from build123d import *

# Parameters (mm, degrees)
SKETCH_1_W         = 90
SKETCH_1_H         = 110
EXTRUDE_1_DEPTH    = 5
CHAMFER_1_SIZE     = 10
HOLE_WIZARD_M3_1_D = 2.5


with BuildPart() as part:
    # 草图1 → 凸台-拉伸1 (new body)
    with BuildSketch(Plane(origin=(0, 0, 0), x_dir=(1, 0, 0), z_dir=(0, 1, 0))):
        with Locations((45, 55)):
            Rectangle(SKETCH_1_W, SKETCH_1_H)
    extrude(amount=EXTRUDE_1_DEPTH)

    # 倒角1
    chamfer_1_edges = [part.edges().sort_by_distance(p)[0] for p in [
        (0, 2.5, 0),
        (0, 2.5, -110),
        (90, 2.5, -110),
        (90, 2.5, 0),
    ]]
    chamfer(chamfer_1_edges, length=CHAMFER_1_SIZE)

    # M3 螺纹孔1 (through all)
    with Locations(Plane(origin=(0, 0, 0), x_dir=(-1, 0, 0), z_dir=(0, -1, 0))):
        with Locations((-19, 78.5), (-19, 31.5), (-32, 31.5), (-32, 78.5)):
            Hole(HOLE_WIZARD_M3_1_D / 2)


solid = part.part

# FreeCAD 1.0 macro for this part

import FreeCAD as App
import Part
import Sketcher
from FreeCAD import Vector


def edges_at(feature, points):
    """Names of the edges that pass closest to the given points."""
    edges = feature.Shape.Edges
    near = lambda p: min(range(len(edges)), key=lambda i: edges[i].distToShape(Part.Vertex(*p))[0])
    return sorted({f"Edge{near(p) + 1}" for p in points})

doc = App.newDocument("Part")
body = doc.addObject("PartDesign::Body", "Body")

sketch1 = body.newObject("Sketcher::SketchObject", "Sketch")
sketch1.AttachmentSupport = (doc.getObject("XZ_Plane"), [""])
sketch1.MapMode = "FlatFace"
sketch1.addGeometry([
    Part.LineSegment(Vector(0, -110, 0), Vector(0, 0, 0)),
    Part.LineSegment(Vector(0, 0, 0), Vector(90, 0, 0)),
    Part.LineSegment(Vector(90, 0, 0), Vector(90, -110, 0)),
    Part.LineSegment(Vector(90, -110, 0), Vector(0, -110, 0)),
], False)
sketch1.addConstraint([
    Sketcher.Constraint("Coincident", 0, 2, 1, 1),
    Sketcher.Constraint("Coincident", 1, 2, 2, 1),
    Sketcher.Constraint("Coincident", 2, 2, 3, 1),
    Sketcher.Constraint("Coincident", 3, 2, 0, 1),
    Sketcher.Constraint("Vertical", 0),
    Sketcher.Constraint("Horizontal", 1),
    Sketcher.Constraint("Vertical", 2),
    Sketcher.Constraint("Horizontal", 3),
    Sketcher.Constraint("Coincident", 0, 2, -1, 1),
    Sketcher.Constraint("DistanceX", 1, 1, 1, 2, 90.0),
    Sketcher.Constraint("DistanceY", 0, 1, 0, 2, 110.0),
])
pad1 = body.newObject("PartDesign::Pad", "Pad")
pad1.Profile = sketch1
pad1.Length = 5
pad1.Reversed = True
doc.recompute()

chamfer = body.newObject("PartDesign::Chamfer", "Chamfer")
chamfer.Base = (pad1, edges_at(pad1, [
    (0, 2.5, 0),
    (0, 2.5, -110),
    (90, 2.5, -110),
    (90, 2.5, 0),
]))
chamfer.Size = 10

sketch2 = body.newObject("Sketcher::SketchObject", "Sketch001")
sketch2.AttachmentSupport = (doc.getObject("XZ_Plane"), [""])
sketch2.MapMode = "FlatFace"
sketch2.addGeometry([
    Part.Circle(Vector(19, -78.5, 0), Vector(0, 0, 1), 1.2),
    Part.Circle(Vector(19, -31.5, 0), Vector(0, 0, 1), 1.2),
    Part.Circle(Vector(32, -31.5, 0), Vector(0, 0, 1), 1.2),
    Part.Circle(Vector(32, -78.5, 0), Vector(0, 0, 1), 1.2),
], False)
sketch2.addConstraint([
    Sketcher.Constraint("Equal", 0, 1),
    Sketcher.Constraint("Equal", 1, 2),
    Sketcher.Constraint("Equal", 2, 3),
    Sketcher.Constraint("Horizontal", 1, 3, 2, 3),
    Sketcher.Constraint("Horizontal", 0, 3, 3, 3),
    Sketcher.Constraint("Vertical", 0, 3, 1, 3),
    Sketcher.Constraint("Vertical", 2, 3, 3, 3),
    Sketcher.Constraint("Diameter", 0, 2.5),
    Sketcher.Constraint("DistanceX", -1, 1, 0, 3, 19.0),
    Sketcher.Constraint("DistanceX", -1, 1, 2, 3, 32.0),
    Sketcher.Constraint("DistanceY", 0, 3, 1, 3, 47.0),
    Sketcher.Constraint("DistanceY", 0, 3, -1, 1, 78.5),
])
doc.recompute()
hole = body.newObject("PartDesign::Hole", "Hole")
hole.Profile = sketch2
hole.ThreadType = "None"
hole.Diameter = 2.5
hole.DepthType = "ThroughAll"

doc.recompute()
